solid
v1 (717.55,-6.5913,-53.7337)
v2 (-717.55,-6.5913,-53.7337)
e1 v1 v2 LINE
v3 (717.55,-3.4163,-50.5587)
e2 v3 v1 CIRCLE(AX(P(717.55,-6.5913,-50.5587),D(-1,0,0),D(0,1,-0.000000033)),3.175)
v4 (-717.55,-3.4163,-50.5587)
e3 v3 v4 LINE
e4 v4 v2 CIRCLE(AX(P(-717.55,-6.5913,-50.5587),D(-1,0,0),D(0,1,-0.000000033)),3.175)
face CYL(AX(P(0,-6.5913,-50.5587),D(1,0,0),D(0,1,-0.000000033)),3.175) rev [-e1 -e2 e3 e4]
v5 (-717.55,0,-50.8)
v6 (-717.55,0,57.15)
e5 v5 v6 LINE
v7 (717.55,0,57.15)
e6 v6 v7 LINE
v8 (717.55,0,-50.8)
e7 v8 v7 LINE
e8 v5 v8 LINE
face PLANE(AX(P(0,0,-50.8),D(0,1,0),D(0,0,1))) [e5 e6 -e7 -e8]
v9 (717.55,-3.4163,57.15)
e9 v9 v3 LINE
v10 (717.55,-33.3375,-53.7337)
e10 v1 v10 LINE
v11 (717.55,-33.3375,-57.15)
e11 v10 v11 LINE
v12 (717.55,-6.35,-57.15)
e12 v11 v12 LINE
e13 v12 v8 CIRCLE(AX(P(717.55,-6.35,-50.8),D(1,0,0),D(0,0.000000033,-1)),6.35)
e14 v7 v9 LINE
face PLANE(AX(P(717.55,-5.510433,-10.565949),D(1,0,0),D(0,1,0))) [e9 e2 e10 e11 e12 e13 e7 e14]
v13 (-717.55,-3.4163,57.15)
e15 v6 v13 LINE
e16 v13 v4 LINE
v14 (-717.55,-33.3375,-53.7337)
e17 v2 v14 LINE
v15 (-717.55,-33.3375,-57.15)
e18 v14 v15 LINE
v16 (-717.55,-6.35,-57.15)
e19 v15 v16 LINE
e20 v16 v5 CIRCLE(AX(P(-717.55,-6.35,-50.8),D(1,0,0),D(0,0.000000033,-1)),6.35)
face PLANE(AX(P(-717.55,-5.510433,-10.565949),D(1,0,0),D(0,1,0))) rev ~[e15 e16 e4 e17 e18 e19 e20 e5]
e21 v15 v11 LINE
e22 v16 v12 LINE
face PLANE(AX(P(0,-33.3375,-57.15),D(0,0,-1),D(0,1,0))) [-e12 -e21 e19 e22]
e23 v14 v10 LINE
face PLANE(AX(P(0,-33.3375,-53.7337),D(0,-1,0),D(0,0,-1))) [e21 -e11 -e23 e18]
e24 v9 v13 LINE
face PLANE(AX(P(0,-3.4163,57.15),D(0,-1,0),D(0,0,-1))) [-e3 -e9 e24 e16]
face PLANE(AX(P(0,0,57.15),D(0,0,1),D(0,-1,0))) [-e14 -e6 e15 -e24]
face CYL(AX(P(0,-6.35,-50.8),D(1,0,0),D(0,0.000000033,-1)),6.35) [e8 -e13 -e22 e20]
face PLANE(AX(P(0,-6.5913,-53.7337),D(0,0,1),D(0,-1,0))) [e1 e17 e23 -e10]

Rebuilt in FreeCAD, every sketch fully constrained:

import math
import FreeCAD as App
import Part
import Sketcher
from FreeCAD import Vector
Q = App.Units.Quantity

doc = App.newDocument("Part")
params = doc.addObject("Spreadsheet::Sheet", "Params")
for row, (alias, value) in enumerate([
    ("sketch1_radius", "0.25 in"),
    ("sketch1_radius2", "0.125 in"),
    ("sketch1_height", "4.25 in"),
    ("sketch1_width", "1.053 in"),
    ("sketch1_width2", "1.0625 in"),
    ("pad1_length", "56.5 in"),
], start=1):
    params.set(f"A{row}", alias)
    params.set(f"B{row}", "=" + value)
    params.setAlias(f"B{row}", alias)

body = doc.addObject("PartDesign::Body", "Body")

sketch1 = body.newObject("Sketcher::SketchObject", "Sketch")
sketch1.AttachmentSupport = (doc.getObject("YZ_Plane"), [""])
sketch1.MapMode = "FlatFace"
sketch1.addGeometry(Part.LineSegment(Vector(-6.6, -53.7, 0), Vector(-33.3, -53.7, 0)), False)
sketch1.addGeometry(Part.LineSegment(Vector(-33.3, -53.7, 0), Vector(-33.3, -57.1, 0)), False)
sketch1.addGeometry(Part.LineSegment(Vector(-33.3, -57.1, 0), Vector(-6.3, -57.1, 0)), False)
sketch1.addGeometry(Part.ArcOfCircle(Part.Circle(Vector(-6.4, -50.8, 0), Vector(0, 0, 1), 6.4), math.radians(-90), math.radians(0)), False)
sketch1.addGeometry(Part.LineSegment(Vector(0, -50.8, 0), Vector(0, 57.1, 0)), False)
sketch1.addGeometry(Part.LineSegment(Vector(0, 57.1, 0), Vector(-3.4, 57.1, 0)), False)
sketch1.addGeometry(Part.LineSegment(Vector(-3.4, 57.1, 0), Vector(-3.4, -50.6, 0)), False)
sketch1.addGeometry(Part.ArcOfCircle(Part.Circle(Vector(-6.6, -50.6, 0), Vector(0, 0, 1), 3.2), math.radians(-90), math.radians(0)), False)
sketch1.addConstraint(Sketcher.Constraint("Coincident", 0, 2, 1, 1))
sketch1.addConstraint(Sketcher.Constraint("Coincident", 1, 2, 2, 1))
sketch1.addConstraint(Sketcher.Constraint("Tangent", 2, 2, 3, 1))
sketch1.addConstraint(Sketcher.Constraint("Tangent", 3, 2, 4, 1))
sketch1.addConstraint(Sketcher.Constraint("Coincident", 4, 2, 5, 1))
sketch1.addConstraint(Sketcher.Constraint("Coincident", 5, 2, 6, 1))
sketch1.addConstraint(Sketcher.Constraint("Tangent", 6, 2, 7, 2))
sketch1.addConstraint(Sketcher.Constraint("Tangent", 7, 1, 0, 1))
sketch1.addConstraint(Sketcher.Constraint("Horizontal", 0))
sketch1.addConstraint(Sketcher.Constraint("Vertical", 1))
sketch1.addConstraint(Sketcher.Constraint("Horizontal", 2))
sketch1.addConstraint(Sketcher.Constraint("Vertical", 4))
sketch1.addConstraint(Sketcher.Constraint("Horizontal", 5))
sketch1.addConstraint(Sketcher.Constraint("Vertical", 6))
sketch1.addConstraint(Sketcher.Constraint("PointOnObject", 3, 2, -2))
sketch1.addConstraint(Sketcher.Constraint("Equal", 5, 1))
sketch1.addConstraint(Sketcher.Constraint("Radius", 3, Q("0.25 in")))
sketch1.addConstraint(Sketcher.Constraint("DistanceY", 3, 3, -1, 1, Q("2 in")))
sketch1.addConstraint(Sketcher.Constraint("Radius", 7, Q("0.125 in")))
sketch1.addConstraint(Sketcher.Constraint("DistanceY", 4, 1, 4, 2, Q("4.25 in")))
sketch1.addConstraint(Sketcher.Constraint("DistanceX", 0, 2, 0, 1, Q("1.053 in")))
sketch1.addConstraint(Sketcher.Constraint("DistanceX", 2, 1, 2, 2, Q("1.0625 in")))
sketch1.setExpression("Constraints[16]", "Params.sketch1_radius")
sketch1.setExpression("Constraints[18]", "Params.sketch1_radius2")
sketch1.setExpression("Constraints[19]", "Params.sketch1_height")
sketch1.setExpression("Constraints[20]", "Params.sketch1_width")
sketch1.setExpression("Constraints[21]", "Params.sketch1_width2")
pad1 = body.newObject("PartDesign::Pad", "Pad")
pad1.Profile = sketch1
pad1.setExpression("Length", "Params.pad1_length")
pad1.Midplane = True

doc.recompute()
